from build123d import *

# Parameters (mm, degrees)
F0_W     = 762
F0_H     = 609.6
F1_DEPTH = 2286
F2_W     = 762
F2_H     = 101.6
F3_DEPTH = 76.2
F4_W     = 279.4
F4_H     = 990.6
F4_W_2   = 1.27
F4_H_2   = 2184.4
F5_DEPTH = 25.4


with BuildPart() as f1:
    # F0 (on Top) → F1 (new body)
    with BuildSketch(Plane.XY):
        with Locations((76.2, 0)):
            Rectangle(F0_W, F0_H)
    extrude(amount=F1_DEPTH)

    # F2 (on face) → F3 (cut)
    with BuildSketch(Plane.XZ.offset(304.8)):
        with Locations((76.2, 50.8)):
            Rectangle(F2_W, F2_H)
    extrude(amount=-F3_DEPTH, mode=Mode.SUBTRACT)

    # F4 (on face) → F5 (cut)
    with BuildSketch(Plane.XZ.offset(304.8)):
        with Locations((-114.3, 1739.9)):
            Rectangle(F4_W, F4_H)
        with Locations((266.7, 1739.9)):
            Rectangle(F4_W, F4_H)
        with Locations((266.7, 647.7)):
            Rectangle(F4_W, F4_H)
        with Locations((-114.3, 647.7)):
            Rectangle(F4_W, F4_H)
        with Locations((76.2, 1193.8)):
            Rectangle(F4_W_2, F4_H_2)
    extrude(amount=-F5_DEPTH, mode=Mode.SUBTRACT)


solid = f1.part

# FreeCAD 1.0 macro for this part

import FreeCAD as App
import Part
import Sketcher

V = App.Vector
Q = App.Units.Quantity

doc = App.newDocument("Part")
body = doc.addObject("PartDesign::Body", "Body")

sketch1 = doc.addObject("Sketcher::SketchObject", "Sketch")
body.addObject(sketch1)
sketch1.AttachmentSupport = (doc.XY_Plane, [""])
sketch1.MapMode = "FlatFace"
sketch1.addGeometry([
    Part.LineSegment(V(-305, 305, 0), V(-305, -305, 0)),
    Part.LineSegment(V(-305, -305, 0), V(457, -305, 0)),
    Part.LineSegment(V(457, -305, 0), V(457, 305, 0)),
    Part.LineSegment(V(457, 305, 0), V(-305, 305, 0)),
], False)
sketch1.addConstraint([
    Sketcher.Constraint("Coincident", 0, 2, 1, 1),
    Sketcher.Constraint("Coincident", 1, 2, 2, 1),
    Sketcher.Constraint("Coincident", 2, 2, 3, 1),
    Sketcher.Constraint("Coincident", 3, 2, 0, 1),
    Sketcher.Constraint("Vertical", 0),
    Sketcher.Constraint("Horizontal", 1),
    Sketcher.Constraint("Vertical", 2),
    Sketcher.Constraint("Horizontal", 3),
    Sketcher.Constraint("DistanceX", 1, 1, 1, 2, Q("30 in")),
    Sketcher.Constraint("DistanceY", 0, 2, 0, 1, Q("24 in")),
    Sketcher.Constraint("DistanceX", 0, 2, -1, 1, Q("12 in")),
    Sketcher.Constraint("DistanceY", 0, 2, -1, 1, Q("12 in")),
])
pad1 = doc.addObject("PartDesign::Pad", "Pad")
body.addObject(pad1)
pad1.Profile = sketch1
pad1.Length = Q("90 in")

sketch2 = doc.addObject("Sketcher::SketchObject", "Sketch001")
body.addObject(sketch2)
sketch2.AttachmentSupport = (doc.XZ_Plane, [""])
sketch2.MapMode = "FlatFace"
sketch2.AttachmentOffset = App.Placement(V(0, 0, 12 * 25.4), App.Rotation())
sketch2.addGeometry([
    Part.LineSegment(V(-305, 102, 0), V(-305, 0, 0)),
    Part.LineSegment(V(-305, 0, 0), V(457, 0, 0)),
    Part.LineSegment(V(457, 0, 0), V(457, 102, 0)),
    Part.LineSegment(V(457, 102, 0), V(-305, 102, 0)),
], False)
sketch2.addConstraint([
    Sketcher.Constraint("Coincident", 0, 2, 1, 1),
    Sketcher.Constraint("Coincident", 1, 2, 2, 1),
    Sketcher.Constraint("Coincident", 2, 2, 3, 1),
    Sketcher.Constraint("Coincident", 3, 2, 0, 1),
    Sketcher.Constraint("Vertical", 0),
    Sketcher.Constraint("Horizontal", 1),
    Sketcher.Constraint("Vertical", 2),
    Sketcher.Constraint("Horizontal", 3),
    Sketcher.Constraint("PointOnObject", 0, 2, -1),
    Sketcher.Constraint("DistanceX", 1, 1, 1, 2, Q("30 in")),
    Sketcher.Constraint("DistanceY", 0, 2, 0, 1, Q("4 in")),
    Sketcher.Constraint("DistanceX", 0, 2, -1, 1, Q("12 in")),
])
pocket1 = doc.addObject("PartDesign::Pocket", "Pocket")
body.addObject(pocket1)
pocket1.Profile = sketch2
pocket1.Length = Q("3 in")

sketch3 = doc.addObject("Sketcher::SketchObject", "Sketch002")
body.addObject(sketch3)
sketch3.AttachmentSupport = (doc.XZ_Plane, [""])
sketch3.MapMode = "FlatFace"
sketch3.AttachmentOffset = App.Placement(V(0, 0, 12 * 25.4), App.Rotation())
sketch3.addGeometry([
    Part.LineSegment(V(-254, 2235.2, 0), V(-254, 1244.6, 0)),
    Part.LineSegment(V(-254, 1244.6, 0), V(25.4, 1244.6, 0)),
    Part.LineSegment(V(25.4, 1244.6, 0), V(25.4, 2235.2, 0)),
    Part.LineSegment(V(25.4, 2235.2, 0), V(-254, 2235.2, 0)),
    Part.LineSegment(V(127, 2235.2, 0), V(127, 1244.6, 0)),
    Part.LineSegment(V(127, 1244.6, 0), V(406.4, 1244.6, 0)),
    Part.LineSegment(V(406.4, 1244.6, 0), V(406.4, 2235.2, 0)),
    Part.LineSegment(V(406.4, 2235.2, 0), V(127, 2235.2, 0)),
    Part.LineSegment(V(127, 1143, 0), V(127, 152.4, 0)),
    Part.LineSegment(V(127, 152.4, 0), V(406.4, 152.4, 0)),
    Part.LineSegment(V(406.4, 152.4, 0), V(406.4, 1143, 0)),
    Part.LineSegment(V(406.4, 1143, 0), V(127, 1143, 0)),
    Part.LineSegment(V(-254, 1143, 0), V(-254, 152.4, 0)),
    Part.LineSegment(V(-254, 152.4, 0), V(25.4, 152.4, 0)),
    Part.LineSegment(V(25.4, 152.4, 0), V(25.4, 1143, 0)),
    Part.LineSegment(V(25.4, 1143, 0), V(-254, 1143, 0)),
    Part.LineSegment(V(75.6, 2286, 0), V(75.6, 101.6, 0)),
    Part.LineSegment(V(75.6, 101.6, 0), V(76.8, 101.6, 0)),
    Part.LineSegment(V(76.8, 101.6, 0), V(76.8, 2286, 0)),
    Part.LineSegment(V(76.8, 2286, 0), V(75.6, 2286, 0)),
], False)
sketch3.addConstraint([
    Sketcher.Constraint("Coincident", 0, 2, 1, 1),
    Sketcher.Constraint("Coincident", 1, 2, 2, 1),
    Sketcher.Constraint("Coincident", 2, 2, 3, 1),
    Sketcher.Constraint("Coincident", 3, 2, 0, 1),
    Sketcher.Constraint("Coincident", 4, 2, 5, 1),
    Sketcher.Constraint("Coincident", 5, 2, 6, 1),
    Sketcher.Constraint("Coincident", 6, 2, 7, 1),
    Sketcher.Constraint("Coincident", 7, 2, 4, 1),
    Sketcher.Constraint("Coincident", 8, 2, 9, 1),
    Sketcher.Constraint("Coincident", 9, 2, 10, 1),
    Sketcher.Constraint("Coincident", 10, 2, 11, 1),
    Sketcher.Constraint("Coincident", 11, 2, 8, 1),
    Sketcher.Constraint("Coincident", 12, 2, 13, 1),
    Sketcher.Constraint("Coincident", 13, 2, 14, 1),
    Sketcher.Constraint("Coincident", 14, 2, 15, 1),
    Sketcher.Constraint("Coincident", 15, 2, 12, 1),
    Sketcher.Constraint("Coincident", 16, 2, 17, 1),
    Sketcher.Constraint("Coincident", 17, 2, 18, 1),
    Sketcher.Constraint("Coincident", 18, 2, 19, 1),
    Sketcher.Constraint("Coincident", 19, 2, 16, 1),
    Sketcher.Constraint("Vertical", 0),
    Sketcher.Constraint("Horizontal", 1),
    Sketcher.Constraint("Vertical", 2),
    Sketcher.Constraint("Horizontal", 3),
    Sketcher.Constraint("Vertical", 4),
    Sketcher.Constraint("Horizontal", 5),
    Sketcher.Constraint("Vertical", 6),
    Sketcher.Constraint("Horizontal", 7),
    Sketcher.Constraint("Vertical", 8),
    Sketcher.Constraint("Horizontal", 9),
    Sketcher.Constraint("Vertical", 10),
    Sketcher.Constraint("Horizontal", 11),
    Sketcher.Constraint("Vertical", 12),
    Sketcher.Constraint("Horizontal", 13),
    Sketcher.Constraint("Vertical", 14),
    Sketcher.Constraint("Horizontal", 15),
    Sketcher.Constraint("Vertical", 16),
    Sketcher.Constraint("Horizontal", 17),
    Sketcher.Constraint("Vertical", 18),
    Sketcher.Constraint("Horizontal", 19),
    Sketcher.Constraint("Horizontal", 1, 2, 4, 2),
    Sketcher.Constraint("Horizontal", 3, 2, 6, 2),
    Sketcher.Constraint("Horizontal", 9, 2, 12, 2),
    Sketcher.Constraint("Horizontal", 11, 2, 14, 2),
    Sketcher.Constraint("Vertical", 7, 2, 8, 2),
    Sketcher.Constraint("Vertical", 6, 2, 9, 2),
    Sketcher.Constraint("Vertical", 3, 2, 12, 2),
    Sketcher.Constraint("Vertical", 2, 2, 13, 2),
    Sketcher.Constraint("Equal", 3, 5),
    Sketcher.Constraint("Equal", 6, 8),
    Sketcher.Constraint("DistanceX", 1, 1, 1, 2, Q("11 in")),
    Sketcher.Constraint("DistanceY", 0, 2, 0, 1, Q("39 in")),
    Sketcher.Constraint("DistanceY", 16, 2, 16, 1, Q("86 in")),
    Sketcher.Constraint("DistanceX", 0, 2, -1, 1, Q("10 in")),
    Sketcher.Constraint("DistanceY", -1, 1, 0, 2, Q("49 in")),
    Sketcher.Constraint("DistanceX", -1, 1, 4, 2, Q("5 in")),
    Sketcher.Constraint("DistanceY", -1, 1, 8, 2, Q("6 in")),
    Sketcher.Constraint("DistanceY", -1, 1, 16, 2, Q("4 in")),
    Sketcher.Constraint("DistanceX", 17, 1, 17, 2, Q("0.05 in")),
    Sketcher.Constraint("DistanceX", -1, 1, 16, 2, Q("2.975 in")),
])
pocket2 = doc.addObject("PartDesign::Pocket", "Pocket001")
body.addObject(pocket2)
pocket2.Profile = sketch3
pocket2.Length = Q("1 in")

doc.recompute()
